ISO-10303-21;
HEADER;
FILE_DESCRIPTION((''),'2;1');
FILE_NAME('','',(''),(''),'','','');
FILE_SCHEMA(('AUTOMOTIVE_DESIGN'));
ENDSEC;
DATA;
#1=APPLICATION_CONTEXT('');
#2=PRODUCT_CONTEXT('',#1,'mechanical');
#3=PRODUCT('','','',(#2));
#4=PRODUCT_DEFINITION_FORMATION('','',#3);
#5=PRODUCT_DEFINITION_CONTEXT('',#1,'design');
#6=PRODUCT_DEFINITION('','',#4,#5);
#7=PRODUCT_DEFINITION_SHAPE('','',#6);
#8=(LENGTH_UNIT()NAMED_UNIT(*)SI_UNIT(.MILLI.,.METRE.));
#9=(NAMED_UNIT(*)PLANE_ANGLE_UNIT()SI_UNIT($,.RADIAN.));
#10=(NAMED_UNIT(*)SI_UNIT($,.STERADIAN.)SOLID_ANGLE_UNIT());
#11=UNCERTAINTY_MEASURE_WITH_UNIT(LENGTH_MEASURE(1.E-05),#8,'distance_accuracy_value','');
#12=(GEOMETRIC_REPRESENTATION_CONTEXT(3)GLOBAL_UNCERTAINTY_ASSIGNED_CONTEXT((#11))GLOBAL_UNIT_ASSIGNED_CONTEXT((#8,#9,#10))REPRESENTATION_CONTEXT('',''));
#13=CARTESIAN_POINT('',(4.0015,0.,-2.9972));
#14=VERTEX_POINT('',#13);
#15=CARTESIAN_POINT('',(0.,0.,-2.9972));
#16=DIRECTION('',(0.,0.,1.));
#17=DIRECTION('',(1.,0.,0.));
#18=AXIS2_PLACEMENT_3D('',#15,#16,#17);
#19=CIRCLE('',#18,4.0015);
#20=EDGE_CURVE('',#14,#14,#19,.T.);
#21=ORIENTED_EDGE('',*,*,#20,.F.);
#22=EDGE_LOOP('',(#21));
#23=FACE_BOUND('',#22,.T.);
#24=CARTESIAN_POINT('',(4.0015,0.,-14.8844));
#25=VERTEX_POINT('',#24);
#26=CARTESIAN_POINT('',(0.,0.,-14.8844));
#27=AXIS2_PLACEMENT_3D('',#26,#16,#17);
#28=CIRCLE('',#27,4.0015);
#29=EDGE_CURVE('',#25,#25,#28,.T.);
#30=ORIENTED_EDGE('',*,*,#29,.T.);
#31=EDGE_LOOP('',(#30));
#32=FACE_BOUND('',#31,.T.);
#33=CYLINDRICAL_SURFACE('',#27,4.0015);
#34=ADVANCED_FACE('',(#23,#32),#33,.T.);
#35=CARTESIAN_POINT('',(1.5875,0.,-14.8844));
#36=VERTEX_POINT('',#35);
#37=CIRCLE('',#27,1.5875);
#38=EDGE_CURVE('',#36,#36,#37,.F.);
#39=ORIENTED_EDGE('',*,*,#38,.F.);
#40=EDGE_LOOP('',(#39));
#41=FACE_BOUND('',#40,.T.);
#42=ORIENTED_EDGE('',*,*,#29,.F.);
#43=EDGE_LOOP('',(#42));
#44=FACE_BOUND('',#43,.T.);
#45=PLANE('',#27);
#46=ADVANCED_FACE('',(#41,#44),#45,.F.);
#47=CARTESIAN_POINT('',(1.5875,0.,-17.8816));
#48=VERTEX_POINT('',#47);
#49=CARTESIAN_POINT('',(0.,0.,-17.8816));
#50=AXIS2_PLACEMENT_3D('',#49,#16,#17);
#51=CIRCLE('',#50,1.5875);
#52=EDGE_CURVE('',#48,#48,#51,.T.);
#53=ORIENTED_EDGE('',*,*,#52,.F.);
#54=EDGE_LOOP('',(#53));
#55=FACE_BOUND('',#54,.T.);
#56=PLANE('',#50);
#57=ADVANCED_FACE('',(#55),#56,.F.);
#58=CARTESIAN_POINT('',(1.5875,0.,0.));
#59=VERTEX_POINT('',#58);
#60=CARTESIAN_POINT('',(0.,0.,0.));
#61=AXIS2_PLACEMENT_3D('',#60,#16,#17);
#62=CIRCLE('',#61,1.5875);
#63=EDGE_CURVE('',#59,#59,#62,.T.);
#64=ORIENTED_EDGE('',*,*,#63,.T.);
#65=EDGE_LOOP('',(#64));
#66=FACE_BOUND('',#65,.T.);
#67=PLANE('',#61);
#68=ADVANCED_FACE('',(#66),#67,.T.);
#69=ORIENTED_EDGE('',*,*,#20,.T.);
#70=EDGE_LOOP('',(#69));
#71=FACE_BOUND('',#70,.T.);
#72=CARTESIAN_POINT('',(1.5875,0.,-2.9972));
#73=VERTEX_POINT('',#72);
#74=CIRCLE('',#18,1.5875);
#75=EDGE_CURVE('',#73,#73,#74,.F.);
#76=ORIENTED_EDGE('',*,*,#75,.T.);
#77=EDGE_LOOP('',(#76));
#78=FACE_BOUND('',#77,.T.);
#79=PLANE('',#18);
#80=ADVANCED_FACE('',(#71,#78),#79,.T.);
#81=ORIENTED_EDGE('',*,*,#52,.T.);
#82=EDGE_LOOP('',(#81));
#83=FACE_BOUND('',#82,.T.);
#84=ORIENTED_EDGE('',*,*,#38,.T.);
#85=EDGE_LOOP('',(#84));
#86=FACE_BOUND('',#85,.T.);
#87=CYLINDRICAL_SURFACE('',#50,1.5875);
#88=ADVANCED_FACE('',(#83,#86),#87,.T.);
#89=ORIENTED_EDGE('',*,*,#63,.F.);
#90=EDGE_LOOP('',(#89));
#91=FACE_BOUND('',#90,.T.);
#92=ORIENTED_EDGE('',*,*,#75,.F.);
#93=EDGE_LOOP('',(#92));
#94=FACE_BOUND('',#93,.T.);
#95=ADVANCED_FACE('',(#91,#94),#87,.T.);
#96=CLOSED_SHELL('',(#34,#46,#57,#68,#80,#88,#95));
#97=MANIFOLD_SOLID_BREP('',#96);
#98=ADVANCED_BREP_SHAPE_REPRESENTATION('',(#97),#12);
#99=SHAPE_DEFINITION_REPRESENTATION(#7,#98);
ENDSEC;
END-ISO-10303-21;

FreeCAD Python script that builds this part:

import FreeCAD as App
import Part
import Sketcher
Q = App.Units.Quantity

doc = App.newDocument("Part")
body = doc.addObject("PartDesign::Body", "Body")

sketch1 = body.newObject("Sketcher::SketchObject", "Sketch")
sketch1.AttachmentSupport = (doc.getObject("XY_Plane"), [""])
sketch1.MapMode = "FlatFace"
sketch1.addGeometry(Part.Circle(App.Vector(0, 0, 0), App.Vector(0, 0, 1), 1.6), False)
sketch1.addConstraint(Sketcher.Constraint("Coincident", 0, 3, -1, 1))
sketch1.addConstraint(Sketcher.Constraint("Diameter", 0, Q("0.125 in")))
pad1 = body.newObject("PartDesign::Pad", "Pad")
pad1.Profile = sketch1
pad1.Length = Q("0.704 in")
pad1.Reversed = True

sketch2 = body.newObject("Sketcher::SketchObject", "Sketch001")
sketch2.AttachmentSupport = (doc.getObject("XY_Plane"), [""])
sketch2.MapMode = "FlatFace"
sketch2.AttachmentOffset = App.Placement(App.Vector(0, 0, -0.118 * 25.4), App.Rotation())
sketch2.addGeometry(Part.Circle(App.Vector(0, 0, 0), App.Vector(0, 0, 1), 4), False)
sketch2.addConstraint(Sketcher.Constraint("Coincident", 0, 3, -1, 1))
sketch2.addConstraint(Sketcher.Constraint("Diameter", 0, Q("8.003 mm")))
pad2 = body.newObject("PartDesign::Pad", "Pad001")
pad2.Profile = sketch2
pad2.Length = Q("0.468 in")
pad2.Reversed = True

doc.recompute()
